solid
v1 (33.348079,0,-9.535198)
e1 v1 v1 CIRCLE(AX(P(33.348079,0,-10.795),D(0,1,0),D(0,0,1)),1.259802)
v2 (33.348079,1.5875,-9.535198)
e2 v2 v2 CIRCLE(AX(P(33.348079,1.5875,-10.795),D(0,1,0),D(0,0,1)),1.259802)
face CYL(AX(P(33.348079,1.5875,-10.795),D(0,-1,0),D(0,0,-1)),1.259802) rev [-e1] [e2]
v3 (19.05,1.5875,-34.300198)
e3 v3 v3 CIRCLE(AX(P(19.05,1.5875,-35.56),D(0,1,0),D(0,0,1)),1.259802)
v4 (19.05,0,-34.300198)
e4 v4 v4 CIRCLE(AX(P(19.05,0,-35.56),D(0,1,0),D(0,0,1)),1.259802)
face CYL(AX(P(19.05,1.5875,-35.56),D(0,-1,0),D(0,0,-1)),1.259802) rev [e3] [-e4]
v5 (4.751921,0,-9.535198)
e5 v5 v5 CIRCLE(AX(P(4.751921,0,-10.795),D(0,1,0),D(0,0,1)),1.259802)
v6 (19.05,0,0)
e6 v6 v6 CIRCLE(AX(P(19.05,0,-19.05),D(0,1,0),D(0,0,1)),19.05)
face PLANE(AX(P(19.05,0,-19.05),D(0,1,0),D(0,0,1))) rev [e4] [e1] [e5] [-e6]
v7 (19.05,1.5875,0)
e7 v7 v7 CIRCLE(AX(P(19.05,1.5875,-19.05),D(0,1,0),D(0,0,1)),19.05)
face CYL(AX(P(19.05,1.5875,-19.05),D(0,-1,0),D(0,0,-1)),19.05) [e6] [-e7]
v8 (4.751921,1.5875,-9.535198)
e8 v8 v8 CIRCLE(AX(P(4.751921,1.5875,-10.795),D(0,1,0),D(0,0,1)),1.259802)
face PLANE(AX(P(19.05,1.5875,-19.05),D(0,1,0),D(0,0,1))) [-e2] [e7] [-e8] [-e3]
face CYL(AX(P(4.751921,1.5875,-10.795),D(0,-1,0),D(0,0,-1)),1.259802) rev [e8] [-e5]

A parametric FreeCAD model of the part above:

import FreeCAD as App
import Part
import Sketcher
Q = App.Units.Quantity

doc = App.newDocument("Part")
body = doc.addObject("PartDesign::Body", "Body")

# Sketch on XZ plane
sketch1 = doc.addObject("Sketcher::SketchObject", "Sketch")
body.addObject(sketch1)
sketch1.AttachmentSupport = (doc.XZ_Plane, [""])
sketch1.MapMode = "FlatFace"
sketch1.addGeometry(Part.Circle(App.Vector(19.1, -19.1, 0), App.Vector(0, 0, 1), 19.1), False)
sketch1.addGeometry(Part.Circle(App.Vector(19.1, -35.6, 0), App.Vector(0, 0, 1), 1.3), False)
sketch1.addGeometry(Part.Circle(App.Vector(4.8, -10.8, 0), App.Vector(0, 0, 1), 1.3), False)
sketch1.addGeometry(Part.Circle(App.Vector(33.3, -10.8, 0), App.Vector(0, 0, 1), 1.3), False)
sketch1.addConstraint(Sketcher.Constraint("Equal", 1, 2))
sketch1.addConstraint(Sketcher.Constraint("Equal", 2, 3))
sketch1.addConstraint(Sketcher.Constraint("Horizontal", 2, 3, 3, 3))
sketch1.addConstraint(Sketcher.Constraint("Vertical", 0, 3, 1, 3))
sketch1.addConstraint(Sketcher.Constraint("Diameter", 0, Q("1.5 in")))
sketch1.addConstraint(Sketcher.Constraint("DistanceY", 1, 3, -1, 1, Q("1.4 in")))
sketch1.addConstraint(Sketcher.Constraint("DistanceX", -1, 1, 0, 3, Q("0.75 in")))
sketch1.addConstraint(Sketcher.Constraint("DistanceY", 0, 3, -1, 1, Q("0.75 in")))
sketch1.addConstraint(Sketcher.Constraint("DistanceY", 2, 3, -1, 1, Q("0.425 in")))
sketch1.addConstraint(Sketcher.Constraint("Diameter", 1, Q("2.519603 mm")))
sketch1.addConstraint(Sketcher.Constraint("DistanceX", -1, 1, 2, 3, Q("4.751921 mm")))
sketch1.addConstraint(Sketcher.Constraint("DistanceX", -1, 1, 3, 3, Q("33.348079 mm")))
pad1 = doc.addObject("PartDesign::Pad", "Pad")
body.addObject(pad1)
pad1.Profile = sketch1
pad1.Length = Q("0.0625 in")
pad1.Reversed = True

doc.recompute()
